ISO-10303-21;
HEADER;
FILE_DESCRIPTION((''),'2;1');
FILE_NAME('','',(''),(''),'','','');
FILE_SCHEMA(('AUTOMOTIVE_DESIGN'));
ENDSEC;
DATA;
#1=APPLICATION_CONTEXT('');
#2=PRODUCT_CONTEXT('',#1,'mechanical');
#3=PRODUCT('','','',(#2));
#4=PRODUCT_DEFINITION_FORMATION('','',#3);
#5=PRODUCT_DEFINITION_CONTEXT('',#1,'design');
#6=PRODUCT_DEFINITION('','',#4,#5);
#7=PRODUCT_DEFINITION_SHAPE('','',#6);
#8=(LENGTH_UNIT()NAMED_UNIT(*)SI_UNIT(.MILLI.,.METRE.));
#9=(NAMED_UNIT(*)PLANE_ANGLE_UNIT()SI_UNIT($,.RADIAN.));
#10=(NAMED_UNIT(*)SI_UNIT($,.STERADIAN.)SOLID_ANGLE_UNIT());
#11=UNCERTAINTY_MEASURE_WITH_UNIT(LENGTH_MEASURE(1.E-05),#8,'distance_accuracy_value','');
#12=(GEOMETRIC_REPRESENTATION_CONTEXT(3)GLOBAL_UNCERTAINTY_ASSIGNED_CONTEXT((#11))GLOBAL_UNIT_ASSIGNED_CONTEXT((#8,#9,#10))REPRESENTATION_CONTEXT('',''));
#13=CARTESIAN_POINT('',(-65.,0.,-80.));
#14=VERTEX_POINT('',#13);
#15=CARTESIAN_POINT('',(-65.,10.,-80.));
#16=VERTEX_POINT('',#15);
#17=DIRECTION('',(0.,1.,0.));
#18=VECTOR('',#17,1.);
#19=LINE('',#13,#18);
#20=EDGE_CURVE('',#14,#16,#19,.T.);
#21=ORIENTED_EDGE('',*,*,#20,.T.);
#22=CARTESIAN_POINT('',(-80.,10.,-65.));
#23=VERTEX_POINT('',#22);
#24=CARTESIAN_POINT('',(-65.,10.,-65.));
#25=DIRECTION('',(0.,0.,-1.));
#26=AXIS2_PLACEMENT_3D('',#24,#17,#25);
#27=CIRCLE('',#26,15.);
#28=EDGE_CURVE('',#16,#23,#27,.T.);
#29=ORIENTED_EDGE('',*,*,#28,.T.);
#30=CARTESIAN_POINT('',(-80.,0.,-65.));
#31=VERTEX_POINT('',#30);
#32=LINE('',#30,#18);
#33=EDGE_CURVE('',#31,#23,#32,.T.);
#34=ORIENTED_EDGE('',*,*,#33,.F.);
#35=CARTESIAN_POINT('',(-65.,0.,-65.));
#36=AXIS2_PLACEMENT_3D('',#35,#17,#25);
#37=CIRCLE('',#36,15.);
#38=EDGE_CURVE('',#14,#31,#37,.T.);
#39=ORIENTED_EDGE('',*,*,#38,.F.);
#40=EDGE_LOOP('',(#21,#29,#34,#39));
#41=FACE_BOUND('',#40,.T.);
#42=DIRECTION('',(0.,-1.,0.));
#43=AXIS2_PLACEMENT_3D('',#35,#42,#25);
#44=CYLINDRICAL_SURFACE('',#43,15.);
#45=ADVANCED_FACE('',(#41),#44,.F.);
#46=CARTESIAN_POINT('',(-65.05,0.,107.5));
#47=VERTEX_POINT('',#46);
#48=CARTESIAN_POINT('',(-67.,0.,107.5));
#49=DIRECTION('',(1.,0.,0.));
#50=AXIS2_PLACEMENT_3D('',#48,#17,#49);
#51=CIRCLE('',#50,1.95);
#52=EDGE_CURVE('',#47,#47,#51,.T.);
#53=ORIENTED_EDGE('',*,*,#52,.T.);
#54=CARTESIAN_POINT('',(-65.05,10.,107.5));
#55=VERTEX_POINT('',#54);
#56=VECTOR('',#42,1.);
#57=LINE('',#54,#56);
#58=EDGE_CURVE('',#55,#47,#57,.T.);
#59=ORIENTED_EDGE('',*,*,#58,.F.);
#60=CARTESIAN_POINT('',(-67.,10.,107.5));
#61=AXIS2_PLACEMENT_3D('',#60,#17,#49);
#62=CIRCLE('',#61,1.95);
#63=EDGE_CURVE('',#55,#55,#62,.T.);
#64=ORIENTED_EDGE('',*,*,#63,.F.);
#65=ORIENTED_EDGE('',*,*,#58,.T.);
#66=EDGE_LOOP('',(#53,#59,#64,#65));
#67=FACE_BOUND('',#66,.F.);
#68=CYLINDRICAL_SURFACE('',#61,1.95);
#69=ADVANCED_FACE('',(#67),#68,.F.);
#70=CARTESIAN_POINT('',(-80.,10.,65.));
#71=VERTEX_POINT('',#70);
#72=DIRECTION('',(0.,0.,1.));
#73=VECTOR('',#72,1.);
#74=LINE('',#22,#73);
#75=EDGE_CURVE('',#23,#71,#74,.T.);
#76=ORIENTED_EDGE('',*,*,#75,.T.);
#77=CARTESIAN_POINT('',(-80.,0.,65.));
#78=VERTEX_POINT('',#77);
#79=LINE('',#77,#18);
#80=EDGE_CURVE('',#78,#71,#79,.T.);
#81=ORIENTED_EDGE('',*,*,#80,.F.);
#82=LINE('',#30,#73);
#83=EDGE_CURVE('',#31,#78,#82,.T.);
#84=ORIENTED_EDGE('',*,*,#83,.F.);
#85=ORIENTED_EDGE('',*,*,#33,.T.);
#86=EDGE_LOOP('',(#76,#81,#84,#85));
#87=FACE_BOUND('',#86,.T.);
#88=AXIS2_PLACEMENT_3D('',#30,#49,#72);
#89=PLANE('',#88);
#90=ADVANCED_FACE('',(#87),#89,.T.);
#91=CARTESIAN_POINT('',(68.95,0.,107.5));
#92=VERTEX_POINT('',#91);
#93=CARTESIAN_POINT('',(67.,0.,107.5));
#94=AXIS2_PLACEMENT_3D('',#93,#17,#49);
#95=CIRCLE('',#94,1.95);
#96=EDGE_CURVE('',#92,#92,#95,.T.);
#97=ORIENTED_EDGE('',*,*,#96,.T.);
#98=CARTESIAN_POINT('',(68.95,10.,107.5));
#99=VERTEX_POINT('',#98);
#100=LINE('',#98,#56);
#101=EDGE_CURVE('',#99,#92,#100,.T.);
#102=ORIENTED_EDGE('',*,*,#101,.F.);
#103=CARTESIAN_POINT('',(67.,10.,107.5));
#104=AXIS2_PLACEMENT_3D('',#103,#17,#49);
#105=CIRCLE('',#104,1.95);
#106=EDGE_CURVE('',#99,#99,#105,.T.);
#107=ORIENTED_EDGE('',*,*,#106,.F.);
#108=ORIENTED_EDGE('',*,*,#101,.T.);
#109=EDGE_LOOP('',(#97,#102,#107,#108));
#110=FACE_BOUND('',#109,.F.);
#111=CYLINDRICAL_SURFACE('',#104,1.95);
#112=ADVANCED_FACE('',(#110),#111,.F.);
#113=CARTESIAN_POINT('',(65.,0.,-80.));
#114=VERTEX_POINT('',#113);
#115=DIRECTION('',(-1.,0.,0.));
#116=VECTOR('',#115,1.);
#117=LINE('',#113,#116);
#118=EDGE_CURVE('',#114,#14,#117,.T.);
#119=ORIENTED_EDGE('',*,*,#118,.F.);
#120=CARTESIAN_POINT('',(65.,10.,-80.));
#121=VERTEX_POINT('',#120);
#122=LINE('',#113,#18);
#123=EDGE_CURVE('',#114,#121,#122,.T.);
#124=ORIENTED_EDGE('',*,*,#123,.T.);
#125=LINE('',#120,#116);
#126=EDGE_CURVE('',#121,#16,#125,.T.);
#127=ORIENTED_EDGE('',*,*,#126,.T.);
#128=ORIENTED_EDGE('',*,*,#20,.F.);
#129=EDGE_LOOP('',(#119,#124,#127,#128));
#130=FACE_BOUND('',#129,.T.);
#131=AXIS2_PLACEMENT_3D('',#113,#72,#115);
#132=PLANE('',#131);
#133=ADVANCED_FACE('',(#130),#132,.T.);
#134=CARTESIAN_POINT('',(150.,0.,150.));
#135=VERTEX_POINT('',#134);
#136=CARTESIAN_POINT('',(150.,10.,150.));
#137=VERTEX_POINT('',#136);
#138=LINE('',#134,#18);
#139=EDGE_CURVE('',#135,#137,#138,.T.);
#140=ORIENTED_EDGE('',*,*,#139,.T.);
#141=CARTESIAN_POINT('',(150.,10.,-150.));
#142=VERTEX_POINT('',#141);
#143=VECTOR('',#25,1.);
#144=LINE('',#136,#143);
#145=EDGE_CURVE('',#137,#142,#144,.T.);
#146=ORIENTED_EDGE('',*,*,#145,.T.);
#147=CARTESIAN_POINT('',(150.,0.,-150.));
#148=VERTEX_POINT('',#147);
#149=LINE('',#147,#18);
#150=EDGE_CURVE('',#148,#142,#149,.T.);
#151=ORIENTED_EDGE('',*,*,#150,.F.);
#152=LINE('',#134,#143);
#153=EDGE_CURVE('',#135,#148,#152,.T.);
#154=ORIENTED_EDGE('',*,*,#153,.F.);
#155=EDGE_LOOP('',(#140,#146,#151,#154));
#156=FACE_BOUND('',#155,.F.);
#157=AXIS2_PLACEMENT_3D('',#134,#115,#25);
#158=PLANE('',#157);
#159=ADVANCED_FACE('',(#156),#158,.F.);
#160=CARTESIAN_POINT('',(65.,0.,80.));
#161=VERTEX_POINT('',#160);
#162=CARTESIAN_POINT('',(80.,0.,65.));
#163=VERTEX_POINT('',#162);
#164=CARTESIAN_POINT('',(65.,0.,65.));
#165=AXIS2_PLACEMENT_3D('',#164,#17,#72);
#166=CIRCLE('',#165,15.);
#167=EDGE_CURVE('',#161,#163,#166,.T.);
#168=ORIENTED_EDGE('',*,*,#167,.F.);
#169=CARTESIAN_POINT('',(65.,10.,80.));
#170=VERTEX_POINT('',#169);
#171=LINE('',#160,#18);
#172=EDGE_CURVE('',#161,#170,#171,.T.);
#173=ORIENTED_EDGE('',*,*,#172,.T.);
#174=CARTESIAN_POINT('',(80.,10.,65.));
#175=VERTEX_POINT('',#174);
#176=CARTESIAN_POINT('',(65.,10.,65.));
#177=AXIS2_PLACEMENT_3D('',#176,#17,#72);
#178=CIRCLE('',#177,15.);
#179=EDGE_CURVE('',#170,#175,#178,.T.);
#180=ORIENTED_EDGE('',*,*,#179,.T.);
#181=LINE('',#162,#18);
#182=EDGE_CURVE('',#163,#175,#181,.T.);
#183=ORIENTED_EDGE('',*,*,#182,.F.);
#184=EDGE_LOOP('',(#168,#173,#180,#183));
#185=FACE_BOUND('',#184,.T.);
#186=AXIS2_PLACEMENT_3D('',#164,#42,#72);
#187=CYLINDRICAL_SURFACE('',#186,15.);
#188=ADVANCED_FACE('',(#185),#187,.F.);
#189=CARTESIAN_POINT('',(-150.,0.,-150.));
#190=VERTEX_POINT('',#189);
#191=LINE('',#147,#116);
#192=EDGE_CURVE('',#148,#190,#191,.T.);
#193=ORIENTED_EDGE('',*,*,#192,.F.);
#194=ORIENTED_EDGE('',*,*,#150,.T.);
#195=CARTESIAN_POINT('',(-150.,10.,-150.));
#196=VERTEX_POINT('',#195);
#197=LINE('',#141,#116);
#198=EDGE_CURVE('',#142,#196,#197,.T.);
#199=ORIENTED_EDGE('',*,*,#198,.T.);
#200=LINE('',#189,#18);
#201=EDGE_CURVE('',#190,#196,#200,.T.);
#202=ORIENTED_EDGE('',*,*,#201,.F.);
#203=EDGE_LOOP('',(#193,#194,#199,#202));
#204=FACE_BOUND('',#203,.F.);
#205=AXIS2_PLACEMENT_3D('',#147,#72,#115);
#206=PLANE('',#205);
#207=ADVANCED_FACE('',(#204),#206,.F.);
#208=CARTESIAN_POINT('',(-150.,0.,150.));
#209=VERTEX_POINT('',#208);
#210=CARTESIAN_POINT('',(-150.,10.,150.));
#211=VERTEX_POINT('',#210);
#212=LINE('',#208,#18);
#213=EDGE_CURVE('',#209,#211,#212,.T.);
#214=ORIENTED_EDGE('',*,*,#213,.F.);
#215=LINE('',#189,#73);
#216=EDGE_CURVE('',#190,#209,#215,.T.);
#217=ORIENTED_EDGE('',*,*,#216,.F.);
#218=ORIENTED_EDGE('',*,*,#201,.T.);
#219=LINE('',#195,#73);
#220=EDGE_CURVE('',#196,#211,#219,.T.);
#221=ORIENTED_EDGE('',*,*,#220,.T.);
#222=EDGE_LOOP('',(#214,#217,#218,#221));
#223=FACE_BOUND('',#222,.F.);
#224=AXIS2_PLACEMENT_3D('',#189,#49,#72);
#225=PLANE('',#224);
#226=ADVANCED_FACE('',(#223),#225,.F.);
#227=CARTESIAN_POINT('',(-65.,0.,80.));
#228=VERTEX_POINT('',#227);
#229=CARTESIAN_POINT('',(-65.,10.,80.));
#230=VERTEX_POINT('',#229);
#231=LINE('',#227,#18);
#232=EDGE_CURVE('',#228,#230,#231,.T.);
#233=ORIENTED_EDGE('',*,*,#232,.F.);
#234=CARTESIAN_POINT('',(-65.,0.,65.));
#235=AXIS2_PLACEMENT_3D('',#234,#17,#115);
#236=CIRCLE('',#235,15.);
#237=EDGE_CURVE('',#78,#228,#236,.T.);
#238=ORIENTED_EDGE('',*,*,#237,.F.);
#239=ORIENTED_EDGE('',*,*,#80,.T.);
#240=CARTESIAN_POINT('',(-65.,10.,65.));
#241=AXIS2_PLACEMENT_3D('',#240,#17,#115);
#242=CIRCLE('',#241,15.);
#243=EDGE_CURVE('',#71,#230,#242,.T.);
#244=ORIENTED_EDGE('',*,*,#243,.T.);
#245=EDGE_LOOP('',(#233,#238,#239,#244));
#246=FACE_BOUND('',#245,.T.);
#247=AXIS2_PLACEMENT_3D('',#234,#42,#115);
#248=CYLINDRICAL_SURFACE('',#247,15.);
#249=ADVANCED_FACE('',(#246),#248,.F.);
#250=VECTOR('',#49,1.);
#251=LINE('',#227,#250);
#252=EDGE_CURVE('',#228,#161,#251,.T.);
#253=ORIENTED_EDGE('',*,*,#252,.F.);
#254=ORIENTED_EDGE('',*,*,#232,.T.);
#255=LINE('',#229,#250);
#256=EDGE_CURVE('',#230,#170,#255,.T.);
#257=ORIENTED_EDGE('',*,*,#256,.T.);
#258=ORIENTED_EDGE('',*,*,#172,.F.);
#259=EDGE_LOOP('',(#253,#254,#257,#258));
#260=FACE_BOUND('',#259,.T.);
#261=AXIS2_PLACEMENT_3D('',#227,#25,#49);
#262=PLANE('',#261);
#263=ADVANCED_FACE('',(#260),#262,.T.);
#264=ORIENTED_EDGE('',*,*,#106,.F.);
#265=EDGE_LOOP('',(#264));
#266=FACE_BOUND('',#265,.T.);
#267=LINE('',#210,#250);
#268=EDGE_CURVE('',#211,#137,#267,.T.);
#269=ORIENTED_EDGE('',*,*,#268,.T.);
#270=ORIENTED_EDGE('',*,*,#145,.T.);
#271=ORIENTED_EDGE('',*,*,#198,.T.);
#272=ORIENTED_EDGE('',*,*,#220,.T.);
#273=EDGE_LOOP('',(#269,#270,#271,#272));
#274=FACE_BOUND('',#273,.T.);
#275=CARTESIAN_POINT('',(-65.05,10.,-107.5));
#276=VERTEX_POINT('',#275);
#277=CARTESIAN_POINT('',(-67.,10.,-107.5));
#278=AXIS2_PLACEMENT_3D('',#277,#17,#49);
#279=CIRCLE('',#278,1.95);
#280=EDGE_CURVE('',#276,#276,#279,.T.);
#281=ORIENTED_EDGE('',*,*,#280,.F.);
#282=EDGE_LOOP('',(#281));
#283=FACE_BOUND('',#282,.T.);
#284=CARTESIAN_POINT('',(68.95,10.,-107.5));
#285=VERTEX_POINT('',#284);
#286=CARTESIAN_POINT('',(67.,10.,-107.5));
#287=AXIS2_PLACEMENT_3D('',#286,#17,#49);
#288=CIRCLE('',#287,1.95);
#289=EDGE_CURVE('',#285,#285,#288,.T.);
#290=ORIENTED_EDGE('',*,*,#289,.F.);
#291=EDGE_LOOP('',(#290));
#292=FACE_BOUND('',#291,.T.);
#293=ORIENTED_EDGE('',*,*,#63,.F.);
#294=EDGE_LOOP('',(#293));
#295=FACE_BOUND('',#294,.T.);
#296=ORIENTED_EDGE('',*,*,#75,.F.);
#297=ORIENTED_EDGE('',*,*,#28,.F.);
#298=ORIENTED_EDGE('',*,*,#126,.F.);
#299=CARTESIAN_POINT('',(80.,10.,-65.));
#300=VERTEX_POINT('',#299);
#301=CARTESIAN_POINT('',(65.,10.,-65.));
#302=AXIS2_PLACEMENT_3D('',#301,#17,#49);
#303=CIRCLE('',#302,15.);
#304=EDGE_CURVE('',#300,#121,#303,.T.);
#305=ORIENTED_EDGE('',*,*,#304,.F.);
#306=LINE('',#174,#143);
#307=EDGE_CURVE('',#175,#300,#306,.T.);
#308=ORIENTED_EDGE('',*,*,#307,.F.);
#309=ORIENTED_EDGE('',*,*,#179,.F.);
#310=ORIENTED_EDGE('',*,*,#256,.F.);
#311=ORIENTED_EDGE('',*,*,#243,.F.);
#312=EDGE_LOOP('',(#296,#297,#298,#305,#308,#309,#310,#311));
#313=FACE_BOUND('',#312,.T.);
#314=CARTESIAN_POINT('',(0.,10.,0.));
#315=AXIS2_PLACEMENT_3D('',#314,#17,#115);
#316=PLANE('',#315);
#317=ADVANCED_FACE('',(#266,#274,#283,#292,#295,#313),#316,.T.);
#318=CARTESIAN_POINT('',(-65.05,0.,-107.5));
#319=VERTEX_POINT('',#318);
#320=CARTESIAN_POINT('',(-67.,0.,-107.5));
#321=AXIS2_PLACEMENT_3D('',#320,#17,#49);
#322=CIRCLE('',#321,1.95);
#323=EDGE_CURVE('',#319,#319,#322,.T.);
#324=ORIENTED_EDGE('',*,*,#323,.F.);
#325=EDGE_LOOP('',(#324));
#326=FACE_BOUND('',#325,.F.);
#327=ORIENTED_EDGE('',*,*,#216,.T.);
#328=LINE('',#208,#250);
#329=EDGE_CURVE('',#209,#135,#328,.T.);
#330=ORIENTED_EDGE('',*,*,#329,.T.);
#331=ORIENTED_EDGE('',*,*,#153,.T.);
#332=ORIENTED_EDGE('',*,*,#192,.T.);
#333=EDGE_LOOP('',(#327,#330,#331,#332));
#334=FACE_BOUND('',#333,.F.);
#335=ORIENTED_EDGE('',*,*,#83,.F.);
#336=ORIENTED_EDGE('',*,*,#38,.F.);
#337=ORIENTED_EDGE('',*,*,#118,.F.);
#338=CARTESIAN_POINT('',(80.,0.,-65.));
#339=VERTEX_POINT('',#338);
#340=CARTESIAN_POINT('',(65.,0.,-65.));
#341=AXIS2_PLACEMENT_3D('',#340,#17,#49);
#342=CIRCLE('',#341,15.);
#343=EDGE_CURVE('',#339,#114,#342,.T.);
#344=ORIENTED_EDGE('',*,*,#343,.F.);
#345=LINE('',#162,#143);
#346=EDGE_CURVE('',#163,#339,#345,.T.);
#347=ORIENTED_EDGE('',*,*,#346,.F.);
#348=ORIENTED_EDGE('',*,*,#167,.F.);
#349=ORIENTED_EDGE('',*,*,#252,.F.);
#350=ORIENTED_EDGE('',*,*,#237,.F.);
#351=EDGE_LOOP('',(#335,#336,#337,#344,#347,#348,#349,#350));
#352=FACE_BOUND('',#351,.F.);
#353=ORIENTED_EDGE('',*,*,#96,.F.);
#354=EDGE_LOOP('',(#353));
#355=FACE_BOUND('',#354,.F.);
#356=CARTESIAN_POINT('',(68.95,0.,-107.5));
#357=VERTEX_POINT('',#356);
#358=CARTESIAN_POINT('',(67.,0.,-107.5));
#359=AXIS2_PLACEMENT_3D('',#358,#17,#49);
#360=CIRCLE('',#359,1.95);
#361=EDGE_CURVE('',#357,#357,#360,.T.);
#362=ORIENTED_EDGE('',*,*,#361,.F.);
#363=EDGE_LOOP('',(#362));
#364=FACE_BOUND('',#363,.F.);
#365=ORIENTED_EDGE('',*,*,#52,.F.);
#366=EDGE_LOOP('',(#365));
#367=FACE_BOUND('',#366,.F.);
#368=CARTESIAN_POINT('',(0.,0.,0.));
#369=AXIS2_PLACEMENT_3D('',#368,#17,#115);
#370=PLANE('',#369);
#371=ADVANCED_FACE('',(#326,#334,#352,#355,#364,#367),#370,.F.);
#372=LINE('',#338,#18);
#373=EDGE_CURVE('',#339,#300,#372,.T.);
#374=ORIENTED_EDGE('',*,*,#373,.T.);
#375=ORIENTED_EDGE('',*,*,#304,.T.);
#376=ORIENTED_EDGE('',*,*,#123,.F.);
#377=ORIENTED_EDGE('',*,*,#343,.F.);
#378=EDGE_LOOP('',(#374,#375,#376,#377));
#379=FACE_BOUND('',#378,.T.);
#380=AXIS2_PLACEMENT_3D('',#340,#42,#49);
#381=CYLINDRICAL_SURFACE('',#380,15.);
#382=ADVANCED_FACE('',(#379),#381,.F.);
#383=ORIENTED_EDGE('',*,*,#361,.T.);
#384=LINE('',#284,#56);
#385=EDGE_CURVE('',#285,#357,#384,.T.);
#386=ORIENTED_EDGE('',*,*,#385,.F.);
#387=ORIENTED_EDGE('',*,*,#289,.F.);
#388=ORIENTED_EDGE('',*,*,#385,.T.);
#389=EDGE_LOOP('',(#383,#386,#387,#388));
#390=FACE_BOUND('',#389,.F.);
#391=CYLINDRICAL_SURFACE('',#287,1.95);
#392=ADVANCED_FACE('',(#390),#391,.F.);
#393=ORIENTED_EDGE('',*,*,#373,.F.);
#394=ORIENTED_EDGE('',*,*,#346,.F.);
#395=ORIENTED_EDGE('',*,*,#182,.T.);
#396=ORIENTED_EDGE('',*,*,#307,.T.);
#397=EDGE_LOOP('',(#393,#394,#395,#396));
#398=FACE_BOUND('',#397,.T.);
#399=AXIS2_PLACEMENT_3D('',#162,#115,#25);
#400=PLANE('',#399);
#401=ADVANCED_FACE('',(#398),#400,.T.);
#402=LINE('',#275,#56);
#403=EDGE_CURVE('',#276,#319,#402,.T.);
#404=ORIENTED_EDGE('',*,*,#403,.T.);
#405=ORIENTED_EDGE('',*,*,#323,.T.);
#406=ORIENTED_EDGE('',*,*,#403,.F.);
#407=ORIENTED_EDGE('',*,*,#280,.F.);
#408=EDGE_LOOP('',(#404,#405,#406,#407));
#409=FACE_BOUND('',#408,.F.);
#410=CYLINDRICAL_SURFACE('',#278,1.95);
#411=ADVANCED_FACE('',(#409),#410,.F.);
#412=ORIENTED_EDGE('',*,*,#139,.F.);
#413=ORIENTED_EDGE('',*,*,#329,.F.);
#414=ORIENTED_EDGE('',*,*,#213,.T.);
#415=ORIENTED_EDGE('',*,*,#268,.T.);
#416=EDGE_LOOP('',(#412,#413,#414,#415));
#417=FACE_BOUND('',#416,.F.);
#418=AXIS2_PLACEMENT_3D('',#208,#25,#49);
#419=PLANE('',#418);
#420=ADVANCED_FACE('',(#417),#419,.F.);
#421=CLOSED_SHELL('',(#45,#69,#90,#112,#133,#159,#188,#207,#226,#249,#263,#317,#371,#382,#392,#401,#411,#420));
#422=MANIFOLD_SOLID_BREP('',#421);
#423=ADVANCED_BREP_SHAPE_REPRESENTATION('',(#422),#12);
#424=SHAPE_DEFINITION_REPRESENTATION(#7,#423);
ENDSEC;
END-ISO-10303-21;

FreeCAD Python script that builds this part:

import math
import FreeCAD as App
import Part
import Sketcher
from FreeCAD import Vector
Q = App.Units.Quantity

doc = App.newDocument("Part")
body = doc.addObject("PartDesign::Body", "Body")

# Sketch on XZ plane
sketch1 = body.newObject("Sketcher::SketchObject", "Sketch")
sketch1.AttachmentSupport = (doc.getObject("XZ_Plane"), [""])
sketch1.MapMode = "FlatFace"
sketch1.addGeometry(Part.LineSegment(Vector(150, 150, 0), Vector(150, -150, 0)), False)
sketch1.addGeometry(Part.LineSegment(Vector(150, -150, 0), Vector(-150, -150, 0)), False)
sketch1.addGeometry(Part.LineSegment(Vector(-150, -150, 0), Vector(-150, 150, 0)), False)
sketch1.addGeometry(Part.LineSegment(Vector(-150, 150, 0), Vector(150, 150, 0)), False)
sketch1.addGeometry(Part.LineSegment(Vector(-65, -80, 0), Vector(65, -80, 0)), False)
sketch1.addGeometry(Part.ArcOfCircle(Part.Circle(Vector(65, -65, 0), Vector(0, 0, 1), 15), math.radians(-90), math.radians(0)), False)
sketch1.addGeometry(Part.LineSegment(Vector(80, -65, 0), Vector(80, 65, 0)), False)
sketch1.addGeometry(Part.ArcOfCircle(Part.Circle(Vector(65, 65, 0), Vector(0, 0, 1), 15), math.radians(0), math.radians(90)), False)
sketch1.addGeometry(Part.LineSegment(Vector(65, 80, 0), Vector(-65, 80, 0)), False)
sketch1.addGeometry(Part.ArcOfCircle(Part.Circle(Vector(-65, 65, 0), Vector(0, 0, 1), 15), math.radians(90), math.radians(180)), False)
sketch1.addGeometry(Part.LineSegment(Vector(-80, 65, 0), Vector(-80, -65, 0)), False)
sketch1.addGeometry(Part.ArcOfCircle(Part.Circle(Vector(-65, -65, 0), Vector(0, 0, 1), 15), math.radians(180), math.radians(270)), False)
sketch1.addConstraint(Sketcher.Constraint("Coincident", 0, 2, 1, 1))
sketch1.addConstraint(Sketcher.Constraint("Coincident", 1, 2, 2, 1))
sketch1.addConstraint(Sketcher.Constraint("Coincident", 2, 2, 3, 1))
sketch1.addConstraint(Sketcher.Constraint("Coincident", 3, 2, 0, 1))
sketch1.addConstraint(Sketcher.Constraint("Tangent", 4, 2, 5, 1))
sketch1.addConstraint(Sketcher.Constraint("Tangent", 5, 2, 6, 1))
sketch1.addConstraint(Sketcher.Constraint("Tangent", 6, 2, 7, 1))
sketch1.addConstraint(Sketcher.Constraint("Tangent", 7, 2, 8, 1))
sketch1.addConstraint(Sketcher.Constraint("Tangent", 8, 2, 9, 1))
sketch1.addConstraint(Sketcher.Constraint("Tangent", 9, 2, 10, 1))
sketch1.addConstraint(Sketcher.Constraint("Tangent", 10, 2, 11, 1))
sketch1.addConstraint(Sketcher.Constraint("Tangent", 11, 2, 4, 1))
sketch1.addConstraint(Sketcher.Constraint("Vertical", 0))
sketch1.addConstraint(Sketcher.Constraint("Horizontal", 1))
sketch1.addConstraint(Sketcher.Constraint("Vertical", 2))
sketch1.addConstraint(Sketcher.Constraint("Horizontal", 3))
sketch1.addConstraint(Sketcher.Constraint("Horizontal", 4))
sketch1.addConstraint(Sketcher.Constraint("Vertical", 6))
sketch1.addConstraint(Sketcher.Constraint("Horizontal", 8))
sketch1.addConstraint(Sketcher.Constraint("Vertical", 10))
sketch1.addConstraint(Sketcher.Constraint("Equal", 5, 7))
sketch1.addConstraint(Sketcher.Constraint("Equal", 7, 9))
sketch1.addConstraint(Sketcher.Constraint("Equal", 9, 11))
sketch1.addConstraint(Sketcher.Constraint("Symmetric", 5, 3, 9, 3, -1, 1))
sketch1.addConstraint(Sketcher.Constraint("Symmetric", 0, 2, 2, 2, -1, 1))
sketch1.addConstraint(Sketcher.Constraint("Equal", 3, 0))
sketch1.addConstraint(Sketcher.Constraint("Equal", 8, 6))
sketch1.addConstraint(Sketcher.Constraint("Radius", 5, Q("15 mm")))
sketch1.addConstraint(Sketcher.Constraint("DistanceX", 1, 2, 1, 1, Q("300 mm")))
sketch1.addConstraint(Sketcher.Constraint("DistanceX", 4, 1, 4, 2, Q("130 mm")))
pad1 = body.newObject("PartDesign::Pad", "Pad")
pad1.Profile = sketch1
pad1.Length = 10
pad1.Reversed = True

# Sketch on XZ plane
sketch2 = body.newObject("Sketcher::SketchObject", "Sketch001")
sketch2.AttachmentSupport = (doc.getObject("XZ_Plane"), [""])
sketch2.MapMode = "FlatFace"
sketch2.AttachmentOffset = App.Placement(Vector(0, 0, -10), App.Rotation())
sketch2.addGeometry(Part.Circle(Vector(-67, 107.5, 0), Vector(0, 0, 1), 1.9), False)
sketch2.addGeometry(Part.Circle(Vector(67, 107.5, 0), Vector(0, 0, 1), 1.9), False)
sketch2.addGeometry(Part.Circle(Vector(67, -107.5, 0), Vector(0, 0, 1), 1.9), False)
sketch2.addGeometry(Part.Circle(Vector(-67, -107.5, 0), Vector(0, 0, 1), 1.9), False)
sketch2.addConstraint(Sketcher.Constraint("Equal", 0, 1))
sketch2.addConstraint(Sketcher.Constraint("Equal", 1, 2))
sketch2.addConstraint(Sketcher.Constraint("Equal", 2, 3))
sketch2.addConstraint(Sketcher.Constraint("Symmetric", 0, 3, 2, 3, -1, 1))
sketch2.addConstraint(Sketcher.Constraint("Symmetric", 1, 3, 3, 3, -1, 1))
sketch2.addConstraint(Sketcher.Constraint("Symmetric", 0, 3, 1, 3, -2))
sketch2.addConstraint(Sketcher.Constraint("Diameter", 0, Q("3.9 mm")))
sketch2.addConstraint(Sketcher.Constraint("DistanceX", 0, 3, -1, 1, Q("67 mm")))
sketch2.addConstraint(Sketcher.Constraint("DistanceY", 2, 3, 1, 3, Q("215 mm")))
pocket1 = body.newObject("PartDesign::Pocket", "Pocket")
pocket1.Profile = sketch2
pocket1.Length = 10
pocket1.Reversed = True

doc.recompute()
